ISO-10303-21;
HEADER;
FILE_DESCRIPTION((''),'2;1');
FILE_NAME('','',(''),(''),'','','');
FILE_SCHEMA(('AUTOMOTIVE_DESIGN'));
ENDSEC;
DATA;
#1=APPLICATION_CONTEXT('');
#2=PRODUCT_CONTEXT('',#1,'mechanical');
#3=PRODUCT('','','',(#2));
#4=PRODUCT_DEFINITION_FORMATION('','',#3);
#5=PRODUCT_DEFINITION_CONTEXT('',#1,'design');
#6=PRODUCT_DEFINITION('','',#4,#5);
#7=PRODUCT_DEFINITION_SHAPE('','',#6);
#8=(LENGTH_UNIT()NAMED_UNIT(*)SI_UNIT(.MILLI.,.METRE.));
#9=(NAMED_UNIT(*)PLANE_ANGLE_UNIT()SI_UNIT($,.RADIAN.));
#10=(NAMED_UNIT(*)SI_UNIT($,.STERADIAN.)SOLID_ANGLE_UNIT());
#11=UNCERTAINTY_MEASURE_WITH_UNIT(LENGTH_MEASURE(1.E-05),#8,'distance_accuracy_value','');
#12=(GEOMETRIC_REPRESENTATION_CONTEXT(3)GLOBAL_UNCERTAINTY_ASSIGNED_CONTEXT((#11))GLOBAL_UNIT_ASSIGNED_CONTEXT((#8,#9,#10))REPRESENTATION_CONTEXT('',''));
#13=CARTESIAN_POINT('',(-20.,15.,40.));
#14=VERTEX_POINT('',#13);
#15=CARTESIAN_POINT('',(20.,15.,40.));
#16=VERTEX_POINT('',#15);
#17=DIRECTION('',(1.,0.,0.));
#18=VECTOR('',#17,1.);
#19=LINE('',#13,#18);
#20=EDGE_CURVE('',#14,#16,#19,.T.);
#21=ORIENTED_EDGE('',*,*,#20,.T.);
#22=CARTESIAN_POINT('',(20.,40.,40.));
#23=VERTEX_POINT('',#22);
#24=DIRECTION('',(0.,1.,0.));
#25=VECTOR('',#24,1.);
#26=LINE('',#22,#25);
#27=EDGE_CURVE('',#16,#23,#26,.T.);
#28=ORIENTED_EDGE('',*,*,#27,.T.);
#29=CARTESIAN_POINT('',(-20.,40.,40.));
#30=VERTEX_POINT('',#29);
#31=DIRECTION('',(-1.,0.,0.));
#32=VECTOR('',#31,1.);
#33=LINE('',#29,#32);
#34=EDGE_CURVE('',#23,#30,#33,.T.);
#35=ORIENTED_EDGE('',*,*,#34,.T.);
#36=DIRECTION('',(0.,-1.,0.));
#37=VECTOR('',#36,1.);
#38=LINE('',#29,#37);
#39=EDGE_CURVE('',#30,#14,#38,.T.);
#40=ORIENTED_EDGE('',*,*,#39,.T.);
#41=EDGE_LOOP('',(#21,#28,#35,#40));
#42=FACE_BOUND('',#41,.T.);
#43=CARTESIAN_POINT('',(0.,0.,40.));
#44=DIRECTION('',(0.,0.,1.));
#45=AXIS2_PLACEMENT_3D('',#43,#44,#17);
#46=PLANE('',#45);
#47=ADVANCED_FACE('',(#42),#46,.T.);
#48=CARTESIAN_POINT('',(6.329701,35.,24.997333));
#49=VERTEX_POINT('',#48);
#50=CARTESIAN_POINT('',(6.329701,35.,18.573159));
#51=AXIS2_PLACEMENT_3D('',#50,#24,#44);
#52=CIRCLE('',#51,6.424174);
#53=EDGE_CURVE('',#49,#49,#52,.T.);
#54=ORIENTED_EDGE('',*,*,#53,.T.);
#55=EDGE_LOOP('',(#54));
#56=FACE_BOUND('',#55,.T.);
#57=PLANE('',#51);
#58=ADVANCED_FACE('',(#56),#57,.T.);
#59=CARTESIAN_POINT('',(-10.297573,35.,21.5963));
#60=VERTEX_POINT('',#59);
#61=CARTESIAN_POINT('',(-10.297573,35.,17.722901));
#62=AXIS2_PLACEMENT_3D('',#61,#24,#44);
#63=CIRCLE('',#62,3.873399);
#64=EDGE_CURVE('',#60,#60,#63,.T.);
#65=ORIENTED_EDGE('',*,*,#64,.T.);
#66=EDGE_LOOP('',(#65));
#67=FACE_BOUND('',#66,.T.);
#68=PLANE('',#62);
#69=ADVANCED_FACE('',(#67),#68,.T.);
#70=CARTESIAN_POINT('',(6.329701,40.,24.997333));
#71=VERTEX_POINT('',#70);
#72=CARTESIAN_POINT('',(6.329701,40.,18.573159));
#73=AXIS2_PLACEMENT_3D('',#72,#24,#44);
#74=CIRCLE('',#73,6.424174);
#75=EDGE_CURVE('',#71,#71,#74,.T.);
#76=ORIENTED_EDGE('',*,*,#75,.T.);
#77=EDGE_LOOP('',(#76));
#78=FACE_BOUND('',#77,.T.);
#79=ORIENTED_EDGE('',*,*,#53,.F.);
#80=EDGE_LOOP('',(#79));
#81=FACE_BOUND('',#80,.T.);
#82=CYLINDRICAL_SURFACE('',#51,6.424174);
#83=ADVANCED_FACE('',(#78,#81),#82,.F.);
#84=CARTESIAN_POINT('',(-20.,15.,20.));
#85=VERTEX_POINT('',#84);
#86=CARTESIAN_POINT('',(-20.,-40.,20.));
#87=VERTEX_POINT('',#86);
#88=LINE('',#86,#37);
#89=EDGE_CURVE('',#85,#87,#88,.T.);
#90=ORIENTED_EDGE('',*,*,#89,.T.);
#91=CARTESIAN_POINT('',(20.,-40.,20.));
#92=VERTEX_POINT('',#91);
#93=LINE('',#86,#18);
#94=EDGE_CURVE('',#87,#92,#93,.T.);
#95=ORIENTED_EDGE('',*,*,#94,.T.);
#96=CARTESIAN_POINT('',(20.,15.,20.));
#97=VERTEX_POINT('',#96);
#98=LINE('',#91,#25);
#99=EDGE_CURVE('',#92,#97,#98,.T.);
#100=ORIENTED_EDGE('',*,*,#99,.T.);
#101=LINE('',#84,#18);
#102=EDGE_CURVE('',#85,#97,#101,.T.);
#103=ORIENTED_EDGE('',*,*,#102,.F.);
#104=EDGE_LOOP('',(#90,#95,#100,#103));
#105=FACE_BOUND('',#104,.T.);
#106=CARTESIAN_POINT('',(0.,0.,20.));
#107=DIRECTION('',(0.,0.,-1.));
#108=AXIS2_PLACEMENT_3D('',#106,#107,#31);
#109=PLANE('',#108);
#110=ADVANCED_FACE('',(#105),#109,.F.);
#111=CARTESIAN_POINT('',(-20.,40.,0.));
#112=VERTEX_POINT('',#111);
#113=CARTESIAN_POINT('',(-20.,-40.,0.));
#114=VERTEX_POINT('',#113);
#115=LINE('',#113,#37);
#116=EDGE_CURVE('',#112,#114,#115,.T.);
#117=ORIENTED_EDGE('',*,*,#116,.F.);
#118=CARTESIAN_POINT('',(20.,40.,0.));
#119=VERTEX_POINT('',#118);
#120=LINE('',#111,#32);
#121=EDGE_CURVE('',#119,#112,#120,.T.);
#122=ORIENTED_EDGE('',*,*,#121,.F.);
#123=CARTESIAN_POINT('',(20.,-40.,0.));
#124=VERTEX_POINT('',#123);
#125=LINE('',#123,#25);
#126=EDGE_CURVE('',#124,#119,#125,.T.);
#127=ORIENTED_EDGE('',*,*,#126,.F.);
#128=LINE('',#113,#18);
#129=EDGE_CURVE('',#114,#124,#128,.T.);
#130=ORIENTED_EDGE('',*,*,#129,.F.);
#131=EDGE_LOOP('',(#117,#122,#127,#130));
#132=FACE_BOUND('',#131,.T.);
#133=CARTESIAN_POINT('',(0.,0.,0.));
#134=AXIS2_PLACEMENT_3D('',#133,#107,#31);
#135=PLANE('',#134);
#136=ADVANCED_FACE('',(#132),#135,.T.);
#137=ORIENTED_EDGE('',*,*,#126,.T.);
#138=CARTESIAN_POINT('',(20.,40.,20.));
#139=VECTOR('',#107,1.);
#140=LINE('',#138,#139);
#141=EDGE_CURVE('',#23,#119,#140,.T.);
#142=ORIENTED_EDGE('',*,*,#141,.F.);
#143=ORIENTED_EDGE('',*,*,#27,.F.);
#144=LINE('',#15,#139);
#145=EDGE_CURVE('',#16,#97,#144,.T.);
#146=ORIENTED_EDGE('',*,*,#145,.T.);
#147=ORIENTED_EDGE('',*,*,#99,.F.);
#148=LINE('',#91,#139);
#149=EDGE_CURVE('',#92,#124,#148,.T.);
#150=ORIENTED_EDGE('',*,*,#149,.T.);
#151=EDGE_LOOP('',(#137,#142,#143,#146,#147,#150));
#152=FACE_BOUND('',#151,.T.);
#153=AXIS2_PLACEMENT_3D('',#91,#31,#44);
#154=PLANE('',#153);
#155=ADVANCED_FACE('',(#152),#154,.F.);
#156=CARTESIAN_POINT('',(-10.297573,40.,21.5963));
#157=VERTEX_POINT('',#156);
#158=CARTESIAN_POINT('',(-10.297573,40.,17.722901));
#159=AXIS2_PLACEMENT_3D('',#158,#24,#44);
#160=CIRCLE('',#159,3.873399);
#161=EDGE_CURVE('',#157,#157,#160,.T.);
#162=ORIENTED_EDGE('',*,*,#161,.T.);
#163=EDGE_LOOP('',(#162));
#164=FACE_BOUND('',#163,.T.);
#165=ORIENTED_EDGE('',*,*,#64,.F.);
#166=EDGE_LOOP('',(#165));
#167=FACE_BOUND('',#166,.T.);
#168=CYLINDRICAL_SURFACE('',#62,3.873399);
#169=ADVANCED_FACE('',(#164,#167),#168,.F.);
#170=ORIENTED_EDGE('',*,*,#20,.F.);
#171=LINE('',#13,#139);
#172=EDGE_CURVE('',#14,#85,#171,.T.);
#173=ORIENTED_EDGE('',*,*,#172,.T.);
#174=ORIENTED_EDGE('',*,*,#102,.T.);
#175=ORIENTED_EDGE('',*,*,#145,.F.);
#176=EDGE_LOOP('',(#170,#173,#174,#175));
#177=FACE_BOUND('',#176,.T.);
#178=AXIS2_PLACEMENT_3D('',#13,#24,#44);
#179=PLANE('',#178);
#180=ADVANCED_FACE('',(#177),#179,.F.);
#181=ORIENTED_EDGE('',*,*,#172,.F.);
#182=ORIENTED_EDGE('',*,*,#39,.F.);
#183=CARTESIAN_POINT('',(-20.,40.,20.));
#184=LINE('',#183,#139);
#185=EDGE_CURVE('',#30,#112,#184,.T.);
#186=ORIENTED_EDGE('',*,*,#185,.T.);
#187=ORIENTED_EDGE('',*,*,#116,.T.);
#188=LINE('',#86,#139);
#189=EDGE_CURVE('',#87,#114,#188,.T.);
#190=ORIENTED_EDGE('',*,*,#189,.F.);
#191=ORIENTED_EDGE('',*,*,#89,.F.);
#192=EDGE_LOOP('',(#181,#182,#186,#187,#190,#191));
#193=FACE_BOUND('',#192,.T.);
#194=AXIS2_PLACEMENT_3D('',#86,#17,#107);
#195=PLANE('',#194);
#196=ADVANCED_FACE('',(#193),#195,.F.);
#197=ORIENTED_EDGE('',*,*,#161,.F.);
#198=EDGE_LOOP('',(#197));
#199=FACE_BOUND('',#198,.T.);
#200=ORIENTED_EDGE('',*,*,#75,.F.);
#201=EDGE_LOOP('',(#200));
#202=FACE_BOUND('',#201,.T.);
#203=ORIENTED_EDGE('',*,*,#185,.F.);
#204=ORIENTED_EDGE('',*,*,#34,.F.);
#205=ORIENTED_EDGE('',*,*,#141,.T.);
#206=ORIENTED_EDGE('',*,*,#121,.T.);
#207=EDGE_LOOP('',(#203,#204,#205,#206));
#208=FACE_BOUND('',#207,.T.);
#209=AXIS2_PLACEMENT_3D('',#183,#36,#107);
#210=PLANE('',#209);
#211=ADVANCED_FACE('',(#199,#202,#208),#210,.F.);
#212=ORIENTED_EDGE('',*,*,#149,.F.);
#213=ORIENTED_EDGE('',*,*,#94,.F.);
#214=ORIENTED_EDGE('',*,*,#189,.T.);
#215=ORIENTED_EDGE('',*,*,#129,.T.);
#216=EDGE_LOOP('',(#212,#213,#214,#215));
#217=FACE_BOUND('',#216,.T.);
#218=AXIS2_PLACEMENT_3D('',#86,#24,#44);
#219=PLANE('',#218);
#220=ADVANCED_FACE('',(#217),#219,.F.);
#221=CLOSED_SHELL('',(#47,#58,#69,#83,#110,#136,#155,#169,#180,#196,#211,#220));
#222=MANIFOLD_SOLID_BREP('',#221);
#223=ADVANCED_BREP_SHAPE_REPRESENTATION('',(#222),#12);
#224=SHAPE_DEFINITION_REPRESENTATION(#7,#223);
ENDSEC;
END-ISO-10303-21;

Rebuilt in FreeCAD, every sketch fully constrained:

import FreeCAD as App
import Part
import Sketcher


def add_polygon(sketch, points):
    """Adds a closed chain of lines whose ends are joined by coincident constraints."""
    first, n = sketch.GeometryCount, len(points)
    for a, b in zip(points, points[1:] + points[:1]):
        sketch.addGeometry(Part.LineSegment(App.Vector(*a, 0), App.Vector(*b, 0)), False)
    for i in range(n):
        sketch.addConstraint(Sketcher.Constraint("Coincident", first + i, 2, first + (i + 1) % n, 1))

doc = App.newDocument("Part")
body = doc.addObject("PartDesign::Body", "Body")

sketch1 = doc.addObject("Sketcher::SketchObject", "Sketch")
body.addObject(sketch1)
sketch1.AttachmentSupport = (doc.XY_Plane, [""])
sketch1.MapMode = "FlatFace"
add_polygon(sketch1, [(-20, 40), (-20, -40), (20, -40), (20, 40)])
sketch1.addConstraint([
    Sketcher.Constraint("Vertical", 0),
    Sketcher.Constraint("Horizontal", 1),
    Sketcher.Constraint("Vertical", 2),
    Sketcher.Constraint("Horizontal", 3),
    Sketcher.Constraint("Symmetric", 0, 2, 2, 2, -1, 1),
    Sketcher.Constraint("DistanceX", 1, 1, 1, 2, 40.0),
    Sketcher.Constraint("DistanceY", 0, 2, 0, 1, 80.0),
])
pad1 = doc.addObject("PartDesign::Pad", "Pad")
body.addObject(pad1)
pad1.Profile = sketch1
pad1.Length = 20

sketch2 = doc.addObject("Sketcher::SketchObject", "Sketch001")
body.addObject(sketch2)
sketch2.AttachmentSupport = (doc.XY_Plane, [""])
sketch2.MapMode = "FlatFace"
sketch2.AttachmentOffset = App.Placement(App.Vector(0, 0, 20), App.Rotation())
add_polygon(sketch2, [(-20, 40), (-20, 15), (20, 15), (20, 40)])
sketch2.addConstraint([
    Sketcher.Constraint("Vertical", 0),
    Sketcher.Constraint("Horizontal", 1),
    Sketcher.Constraint("Vertical", 2),
    Sketcher.Constraint("Horizontal", 3),
    Sketcher.Constraint("DistanceX", 1, 1, 1, 2, 40.0),
    Sketcher.Constraint("DistanceY", 0, 2, 0, 1, 25.0),
    Sketcher.Constraint("DistanceX", 0, 2, -1, 1, 20.0),
    Sketcher.Constraint("DistanceY", -1, 1, 0, 2, 15.0),
])
pad2 = doc.addObject("PartDesign::Pad", "Pad001")
body.addObject(pad2)
pad2.Profile = sketch2
pad2.Length = 20

sketch3 = doc.addObject("Sketcher::SketchObject", "Sketch002")
body.addObject(sketch3)
sketch3.AttachmentSupport = (doc.XZ_Plane, [""])
sketch3.MapMode = "FlatFace"
sketch3.AttachmentOffset = App.Placement(App.Vector(0, 0, -40), App.Rotation())
sketch3.addGeometry([
    Part.Circle(App.Vector(-10.297573, 17.722901, 0), App.Vector(0, 0, 1), 3.873399),
    Part.Circle(App.Vector(6.329701, 18.573159, 0), App.Vector(0, 0, 1), 6.424174),
], False)
sketch3.addConstraint([
    Sketcher.Constraint("Diameter", 0, 7.746798),
    Sketcher.Constraint("Diameter", 1, 12.848347),
    Sketcher.Constraint("DistanceY", -1, 1, 0, 3, 17.722901),
    Sketcher.Constraint("DistanceX", -1, 1, 1, 3, 6.329701),
    Sketcher.Constraint("DistanceY", -1, 1, 1, 3, 18.573159),
    Sketcher.Constraint("DistanceX", 0, 3, -1, 1, 10.297573),
])
pocket1 = doc.addObject("PartDesign::Pocket", "Pocket")
body.addObject(pocket1)
pocket1.Profile = sketch3
pocket1.Length = 5
pocket1.Reversed = True

doc.recompute()
